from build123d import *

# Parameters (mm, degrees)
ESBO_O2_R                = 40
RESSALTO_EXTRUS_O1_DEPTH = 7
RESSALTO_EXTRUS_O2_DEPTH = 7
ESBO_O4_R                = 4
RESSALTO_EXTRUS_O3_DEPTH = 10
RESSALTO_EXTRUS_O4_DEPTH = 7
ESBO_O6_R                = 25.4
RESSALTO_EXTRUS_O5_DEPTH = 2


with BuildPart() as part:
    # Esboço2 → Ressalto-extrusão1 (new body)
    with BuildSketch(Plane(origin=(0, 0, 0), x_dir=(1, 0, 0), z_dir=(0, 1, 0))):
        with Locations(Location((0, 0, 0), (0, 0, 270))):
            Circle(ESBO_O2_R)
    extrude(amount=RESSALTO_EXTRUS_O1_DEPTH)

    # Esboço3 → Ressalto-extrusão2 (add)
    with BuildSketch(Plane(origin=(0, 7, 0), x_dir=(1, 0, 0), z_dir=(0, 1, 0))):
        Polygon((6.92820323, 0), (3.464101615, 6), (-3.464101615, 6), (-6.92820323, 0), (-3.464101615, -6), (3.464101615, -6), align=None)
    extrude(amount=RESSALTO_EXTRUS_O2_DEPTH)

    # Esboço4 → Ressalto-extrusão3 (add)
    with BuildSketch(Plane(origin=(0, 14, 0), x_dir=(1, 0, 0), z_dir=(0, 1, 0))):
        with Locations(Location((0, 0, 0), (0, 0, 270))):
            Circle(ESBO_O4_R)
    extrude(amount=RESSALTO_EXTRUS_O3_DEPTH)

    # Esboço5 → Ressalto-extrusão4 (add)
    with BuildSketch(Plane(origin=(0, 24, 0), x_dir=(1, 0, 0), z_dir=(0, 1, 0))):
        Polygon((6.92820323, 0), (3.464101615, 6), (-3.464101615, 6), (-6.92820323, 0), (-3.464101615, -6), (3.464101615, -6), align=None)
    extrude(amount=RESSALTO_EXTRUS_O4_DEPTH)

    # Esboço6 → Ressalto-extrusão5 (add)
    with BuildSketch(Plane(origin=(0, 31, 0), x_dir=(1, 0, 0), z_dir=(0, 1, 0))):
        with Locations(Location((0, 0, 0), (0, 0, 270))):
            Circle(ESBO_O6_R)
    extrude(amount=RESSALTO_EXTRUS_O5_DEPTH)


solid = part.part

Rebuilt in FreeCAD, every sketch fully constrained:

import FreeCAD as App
import Part
import Sketcher

V = App.Vector
Q = App.Units.Quantity


def add_polygon(sketch, points):
    """Adds a closed chain of lines whose ends are joined by coincident constraints."""
    first, n = sketch.GeometryCount, len(points)
    for a, b in zip(points, points[1:] + points[:1]):
        sketch.addGeometry(Part.LineSegment(App.Vector(*a, 0), App.Vector(*b, 0)), False)
    for i in range(n):
        sketch.addConstraint(Sketcher.Constraint("Coincident", first + i, 2, first + (i + 1) % n, 1))

doc = App.newDocument("Part")
body = doc.addObject("PartDesign::Body", "Body")

# Sketch on XZ plane
sketch1 = body.newObject("Sketcher::SketchObject", "Sketch")
sketch1.AttachmentSupport = (doc.getObject("XZ_Plane"), [""])
sketch1.MapMode = "FlatFace"
sketch1.addGeometry(Part.Circle(V(0, 0, 0), V(0, 0, 1), 40), False)
sketch1.addConstraint([
    Sketcher.Constraint("Coincident", 0, 3, -1, 1),
    Sketcher.Constraint("Diameter", 0, Q("80 mm")),
])
pad1 = body.newObject("PartDesign::Pad", "Pad")
pad1.Profile = sketch1
pad1.Length = 7
pad1.Reversed = True

# Sketch on XZ plane
sketch2 = body.newObject("Sketcher::SketchObject", "Sketch001")
sketch2.AttachmentSupport = (doc.getObject("XZ_Plane"), [""])
sketch2.MapMode = "FlatFace"
sketch2.AttachmentOffset = App.Placement(V(0, 0, -7), App.Rotation())
add_polygon(sketch2, [(7, 0), (3, -6), (-3, -6), (-7, 0), (-3, 6), (3, 6)])  # lines 0-5
sketch2.addConstraint([
    Sketcher.Constraint("Horizontal", 1),
    Sketcher.Constraint("Horizontal", 4),
    Sketcher.Constraint("Symmetric", 0, 2, 3, 2, -1, 1),
    Sketcher.Constraint("Symmetric", 2, 2, 5, 2, -1, 1),
    Sketcher.Constraint("PointOnObject", 2, 2, -1),
    Sketcher.Constraint("Parallel", 2, 5),
    Sketcher.Constraint("Vertical", 1, 2, 3, 2),
    Sketcher.Constraint("Angle", 0, Q("-120 deg")),
    Sketcher.Constraint("DistanceY", 0, 2, -1, 1, Q("6 mm")),
    Sketcher.Constraint("DistanceX", -1, 1, 0, 2, Q("3.464102 mm")),
])
pad2 = body.newObject("PartDesign::Pad", "Pad001")
pad2.Profile = sketch2
pad2.Length = 7
pad2.Reversed = True

# Sketch on XZ plane
sketch3 = body.newObject("Sketcher::SketchObject", "Sketch002")
sketch3.AttachmentSupport = (doc.getObject("XZ_Plane"), [""])
sketch3.MapMode = "FlatFace"
sketch3.AttachmentOffset = App.Placement(V(0, 0, -14), App.Rotation())
sketch3.addGeometry(Part.Circle(V(0, 0, 0), V(0, 0, 1), 4), False)
sketch3.addConstraint([
    Sketcher.Constraint("Coincident", 0, 3, -1, 1),
    Sketcher.Constraint("Diameter", 0, Q("8 mm")),
])
pad3 = body.newObject("PartDesign::Pad", "Pad002")
pad3.Profile = sketch3
pad3.Length = 10
pad3.Reversed = True

# Sketch on XZ plane
sketch4 = body.newObject("Sketcher::SketchObject", "Sketch003")
sketch4.AttachmentSupport = (doc.getObject("XZ_Plane"), [""])
sketch4.MapMode = "FlatFace"
sketch4.AttachmentOffset = App.Placement(V(0, 0, -24), App.Rotation())
add_polygon(sketch4, [(7, 0), (3, -6), (-3, -6), (-7, 0), (-3, 6), (3, 6)])  # lines 0-5
sketch4.addConstraint([
    Sketcher.Constraint("Horizontal", 1),
    Sketcher.Constraint("Horizontal", 4),
    Sketcher.Constraint("Symmetric", 0, 2, 3, 2, -1, 1),
    Sketcher.Constraint("Symmetric", 2, 2, 5, 2, -1, 1),
    Sketcher.Constraint("PointOnObject", 2, 2, -1),
    Sketcher.Constraint("Parallel", 2, 5),
    Sketcher.Constraint("Vertical", 1, 2, 3, 2),
    Sketcher.Constraint("Angle", 0, Q("-120 deg")),
    Sketcher.Constraint("DistanceY", 0, 2, -1, 1, Q("6 mm")),
    Sketcher.Constraint("DistanceX", -1, 1, 0, 2, Q("3.464102 mm")),
])
pad4 = body.newObject("PartDesign::Pad", "Pad003")
pad4.Profile = sketch4
pad4.Length = 7
pad4.Reversed = True

# Sketch on XZ plane
sketch5 = body.newObject("Sketcher::SketchObject", "Sketch004")
sketch5.AttachmentSupport = (doc.getObject("XZ_Plane"), [""])
sketch5.MapMode = "FlatFace"
sketch5.AttachmentOffset = App.Placement(V(0, 0, -31), App.Rotation())
sketch5.addGeometry(Part.Circle(V(0, 0, 0), V(0, 0, 1), 25), False)
sketch5.addConstraint([
    Sketcher.Constraint("Coincident", 0, 3, -1, 1),
    Sketcher.Constraint("Diameter", 0, Q("50.8 mm")),
])
pad5 = body.newObject("PartDesign::Pad", "Pad004")
pad5.Profile = sketch5
pad5.Length = 2
pad5.Reversed = True

doc.recompute()
